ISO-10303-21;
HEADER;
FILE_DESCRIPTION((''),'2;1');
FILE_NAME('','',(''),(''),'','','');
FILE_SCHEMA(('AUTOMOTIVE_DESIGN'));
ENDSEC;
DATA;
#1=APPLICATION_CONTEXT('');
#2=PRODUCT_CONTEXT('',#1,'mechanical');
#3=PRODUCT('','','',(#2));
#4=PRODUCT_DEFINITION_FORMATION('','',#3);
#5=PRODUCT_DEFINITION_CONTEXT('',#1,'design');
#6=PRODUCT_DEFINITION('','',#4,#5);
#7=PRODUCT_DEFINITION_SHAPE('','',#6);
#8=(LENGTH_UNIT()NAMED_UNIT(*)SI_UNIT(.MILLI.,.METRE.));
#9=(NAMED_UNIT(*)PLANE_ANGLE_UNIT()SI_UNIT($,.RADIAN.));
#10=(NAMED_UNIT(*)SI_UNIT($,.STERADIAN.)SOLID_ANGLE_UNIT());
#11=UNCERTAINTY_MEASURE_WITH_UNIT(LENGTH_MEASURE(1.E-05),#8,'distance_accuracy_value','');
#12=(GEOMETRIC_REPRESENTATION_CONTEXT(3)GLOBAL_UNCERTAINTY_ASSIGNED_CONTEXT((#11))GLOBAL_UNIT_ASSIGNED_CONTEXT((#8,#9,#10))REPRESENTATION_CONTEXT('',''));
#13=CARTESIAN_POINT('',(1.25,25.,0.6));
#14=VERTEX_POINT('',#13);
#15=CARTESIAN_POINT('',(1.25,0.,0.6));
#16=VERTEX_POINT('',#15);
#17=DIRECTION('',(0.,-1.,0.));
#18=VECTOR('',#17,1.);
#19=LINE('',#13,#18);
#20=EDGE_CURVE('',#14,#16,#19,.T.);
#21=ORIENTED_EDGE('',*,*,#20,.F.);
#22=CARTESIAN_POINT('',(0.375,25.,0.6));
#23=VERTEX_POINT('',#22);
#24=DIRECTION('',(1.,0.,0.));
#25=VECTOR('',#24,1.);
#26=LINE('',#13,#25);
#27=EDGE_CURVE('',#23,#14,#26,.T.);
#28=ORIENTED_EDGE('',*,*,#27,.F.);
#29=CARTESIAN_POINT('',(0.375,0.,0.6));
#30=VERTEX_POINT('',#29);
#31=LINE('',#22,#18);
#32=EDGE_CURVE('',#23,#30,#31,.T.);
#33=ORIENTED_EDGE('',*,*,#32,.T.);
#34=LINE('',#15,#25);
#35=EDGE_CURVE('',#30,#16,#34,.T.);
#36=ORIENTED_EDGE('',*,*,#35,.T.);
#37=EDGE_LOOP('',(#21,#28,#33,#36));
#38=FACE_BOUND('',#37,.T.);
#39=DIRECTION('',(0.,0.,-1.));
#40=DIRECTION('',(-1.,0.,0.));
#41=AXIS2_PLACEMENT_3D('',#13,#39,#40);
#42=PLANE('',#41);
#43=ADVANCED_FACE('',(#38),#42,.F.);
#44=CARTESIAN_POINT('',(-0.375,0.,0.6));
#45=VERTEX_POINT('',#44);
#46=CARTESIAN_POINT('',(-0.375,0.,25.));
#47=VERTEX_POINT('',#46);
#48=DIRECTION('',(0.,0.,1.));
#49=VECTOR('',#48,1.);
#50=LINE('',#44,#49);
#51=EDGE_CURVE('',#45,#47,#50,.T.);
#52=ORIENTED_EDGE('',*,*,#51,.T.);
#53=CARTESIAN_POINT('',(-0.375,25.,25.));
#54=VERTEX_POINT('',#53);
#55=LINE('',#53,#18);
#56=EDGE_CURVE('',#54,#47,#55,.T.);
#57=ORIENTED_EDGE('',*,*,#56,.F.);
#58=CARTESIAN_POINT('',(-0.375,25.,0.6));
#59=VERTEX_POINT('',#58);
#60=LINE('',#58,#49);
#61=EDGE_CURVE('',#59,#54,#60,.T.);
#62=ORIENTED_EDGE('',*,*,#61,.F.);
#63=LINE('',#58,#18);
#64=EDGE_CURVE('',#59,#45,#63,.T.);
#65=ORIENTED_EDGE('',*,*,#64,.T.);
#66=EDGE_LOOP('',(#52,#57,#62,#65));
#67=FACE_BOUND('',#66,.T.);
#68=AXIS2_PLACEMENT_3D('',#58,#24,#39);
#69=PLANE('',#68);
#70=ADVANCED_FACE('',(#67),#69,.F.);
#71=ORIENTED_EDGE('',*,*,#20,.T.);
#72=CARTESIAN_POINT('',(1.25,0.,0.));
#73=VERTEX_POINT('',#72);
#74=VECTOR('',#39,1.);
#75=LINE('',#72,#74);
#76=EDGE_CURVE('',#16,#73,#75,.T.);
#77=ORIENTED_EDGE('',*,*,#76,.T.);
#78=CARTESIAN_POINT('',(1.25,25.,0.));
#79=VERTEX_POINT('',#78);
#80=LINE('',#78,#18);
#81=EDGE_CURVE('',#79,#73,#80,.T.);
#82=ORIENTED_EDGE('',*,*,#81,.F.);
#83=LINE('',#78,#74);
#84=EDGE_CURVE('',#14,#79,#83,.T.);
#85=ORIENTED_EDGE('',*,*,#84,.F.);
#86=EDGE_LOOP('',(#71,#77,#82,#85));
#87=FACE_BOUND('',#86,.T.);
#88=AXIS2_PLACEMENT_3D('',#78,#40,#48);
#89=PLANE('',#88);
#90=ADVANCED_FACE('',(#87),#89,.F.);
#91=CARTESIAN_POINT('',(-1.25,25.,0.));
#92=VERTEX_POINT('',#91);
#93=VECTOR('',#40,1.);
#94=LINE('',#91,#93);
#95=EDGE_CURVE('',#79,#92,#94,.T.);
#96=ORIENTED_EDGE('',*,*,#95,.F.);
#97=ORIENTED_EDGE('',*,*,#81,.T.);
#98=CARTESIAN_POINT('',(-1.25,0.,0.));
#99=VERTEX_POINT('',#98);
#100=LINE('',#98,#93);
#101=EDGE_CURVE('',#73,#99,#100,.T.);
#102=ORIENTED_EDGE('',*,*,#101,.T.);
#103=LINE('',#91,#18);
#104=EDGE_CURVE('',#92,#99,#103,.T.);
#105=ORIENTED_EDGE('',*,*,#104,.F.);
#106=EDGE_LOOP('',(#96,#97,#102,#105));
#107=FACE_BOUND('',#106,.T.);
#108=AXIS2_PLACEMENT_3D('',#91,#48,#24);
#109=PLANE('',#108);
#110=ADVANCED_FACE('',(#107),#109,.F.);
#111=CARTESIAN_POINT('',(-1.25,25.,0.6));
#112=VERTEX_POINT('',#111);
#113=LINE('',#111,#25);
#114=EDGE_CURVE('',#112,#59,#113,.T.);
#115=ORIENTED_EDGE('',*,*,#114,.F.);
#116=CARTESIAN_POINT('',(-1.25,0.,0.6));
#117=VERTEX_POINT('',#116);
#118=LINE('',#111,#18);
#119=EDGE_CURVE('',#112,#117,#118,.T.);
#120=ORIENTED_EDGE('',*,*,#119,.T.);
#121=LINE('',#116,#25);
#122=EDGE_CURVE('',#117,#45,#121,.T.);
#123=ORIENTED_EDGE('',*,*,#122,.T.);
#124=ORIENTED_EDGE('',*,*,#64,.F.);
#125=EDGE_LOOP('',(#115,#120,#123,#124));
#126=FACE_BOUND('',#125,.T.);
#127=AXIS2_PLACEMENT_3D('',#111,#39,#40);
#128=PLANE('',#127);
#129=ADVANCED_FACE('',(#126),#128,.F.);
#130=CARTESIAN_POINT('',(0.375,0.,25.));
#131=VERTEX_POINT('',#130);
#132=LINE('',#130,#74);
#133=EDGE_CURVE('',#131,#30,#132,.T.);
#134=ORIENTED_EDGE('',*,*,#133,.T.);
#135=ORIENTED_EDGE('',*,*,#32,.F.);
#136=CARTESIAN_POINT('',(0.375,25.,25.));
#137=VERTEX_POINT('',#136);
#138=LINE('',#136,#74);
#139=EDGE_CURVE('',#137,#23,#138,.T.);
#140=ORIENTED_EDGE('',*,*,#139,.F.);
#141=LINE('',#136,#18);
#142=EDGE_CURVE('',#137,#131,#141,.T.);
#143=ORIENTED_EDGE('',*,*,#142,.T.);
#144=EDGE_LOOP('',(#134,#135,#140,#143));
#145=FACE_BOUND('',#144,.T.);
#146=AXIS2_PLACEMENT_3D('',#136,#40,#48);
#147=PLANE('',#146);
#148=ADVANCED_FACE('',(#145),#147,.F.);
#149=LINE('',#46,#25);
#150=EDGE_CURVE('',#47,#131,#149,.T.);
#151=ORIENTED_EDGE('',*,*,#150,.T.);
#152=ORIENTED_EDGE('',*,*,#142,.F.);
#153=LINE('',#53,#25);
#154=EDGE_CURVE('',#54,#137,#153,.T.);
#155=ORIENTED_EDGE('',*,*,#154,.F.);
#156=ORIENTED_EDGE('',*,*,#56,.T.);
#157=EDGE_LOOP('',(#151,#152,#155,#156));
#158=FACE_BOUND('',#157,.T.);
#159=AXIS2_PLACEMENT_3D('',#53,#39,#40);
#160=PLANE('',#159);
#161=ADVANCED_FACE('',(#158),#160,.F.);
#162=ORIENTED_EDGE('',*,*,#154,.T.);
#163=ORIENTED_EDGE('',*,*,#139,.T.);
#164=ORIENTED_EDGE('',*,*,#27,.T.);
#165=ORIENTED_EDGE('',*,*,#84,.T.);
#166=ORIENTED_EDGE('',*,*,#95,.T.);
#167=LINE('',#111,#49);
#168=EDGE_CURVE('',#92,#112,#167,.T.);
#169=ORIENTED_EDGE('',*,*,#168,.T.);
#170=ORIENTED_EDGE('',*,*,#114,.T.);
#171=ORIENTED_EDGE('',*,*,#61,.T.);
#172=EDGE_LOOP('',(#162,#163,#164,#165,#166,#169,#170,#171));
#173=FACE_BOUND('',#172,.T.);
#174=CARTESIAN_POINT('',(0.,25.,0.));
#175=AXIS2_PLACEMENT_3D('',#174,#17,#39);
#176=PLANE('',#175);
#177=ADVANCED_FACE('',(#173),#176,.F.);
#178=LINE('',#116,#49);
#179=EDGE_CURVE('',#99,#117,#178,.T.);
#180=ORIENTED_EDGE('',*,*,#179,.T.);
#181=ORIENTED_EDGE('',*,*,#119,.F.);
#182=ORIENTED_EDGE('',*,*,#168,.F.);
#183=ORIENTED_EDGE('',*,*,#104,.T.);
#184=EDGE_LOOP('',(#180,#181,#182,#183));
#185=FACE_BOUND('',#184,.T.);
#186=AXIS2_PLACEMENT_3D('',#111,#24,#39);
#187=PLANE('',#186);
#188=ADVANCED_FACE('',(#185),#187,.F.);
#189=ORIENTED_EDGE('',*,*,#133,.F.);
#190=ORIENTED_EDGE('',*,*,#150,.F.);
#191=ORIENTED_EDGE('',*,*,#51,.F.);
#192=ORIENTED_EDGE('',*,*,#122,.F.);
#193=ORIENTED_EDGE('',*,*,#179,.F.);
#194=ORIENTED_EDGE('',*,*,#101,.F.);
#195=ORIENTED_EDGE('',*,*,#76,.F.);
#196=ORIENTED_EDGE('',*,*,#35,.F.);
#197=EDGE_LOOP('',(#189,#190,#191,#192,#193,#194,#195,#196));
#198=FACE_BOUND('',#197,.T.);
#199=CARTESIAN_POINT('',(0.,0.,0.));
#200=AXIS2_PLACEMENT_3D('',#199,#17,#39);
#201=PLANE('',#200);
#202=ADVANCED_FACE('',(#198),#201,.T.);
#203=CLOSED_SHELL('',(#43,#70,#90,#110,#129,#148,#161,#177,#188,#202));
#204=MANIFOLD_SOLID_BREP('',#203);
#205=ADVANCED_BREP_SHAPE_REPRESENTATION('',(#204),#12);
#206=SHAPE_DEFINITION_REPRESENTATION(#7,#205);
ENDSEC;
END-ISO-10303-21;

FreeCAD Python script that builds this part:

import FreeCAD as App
import Part
import Sketcher
Q = App.Units.Quantity


def add_polygon(sketch, points):
    """Adds a closed chain of lines whose ends are joined by coincident constraints."""
    first, n = sketch.GeometryCount, len(points)
    for a, b in zip(points, points[1:] + points[:1]):
        sketch.addGeometry(Part.LineSegment(App.Vector(*a, 0), App.Vector(*b, 0)), False)
    for i in range(n):
        sketch.addConstraint(Sketcher.Constraint("Coincident", first + i, 2, first + (i + 1) % n, 1))

doc = App.newDocument("Part")
params = doc.addObject("Spreadsheet::Sheet", "Params")
for row, (alias, value) in enumerate([
    ("sketch1_width", "2.5 mm"),
    ("sketch1_height", "0.6 mm"),
    ("sketch1_height2", "24.4 mm"),
    ("sketch1_width2", "0.75 mm"),
    ("pad1_length", "25 mm"),
], start=1):
    params.set(f"A{row}", alias)
    params.set(f"B{row}", "=" + value)
    params.setAlias(f"B{row}", alias)

body = doc.addObject("PartDesign::Body", "Body")

# Sketch on XZ plane
sketch1 = body.newObject("Sketcher::SketchObject", "Sketch")
sketch1.AttachmentSupport = (doc.getObject("XZ_Plane"), [""])
sketch1.MapMode = "FlatFace"
add_polygon(sketch1, [(1.2, 0), (-1.2, 0), (-1.2, 0.6), (-0.4, 0.6), (-0.4, 25), (0.4, 25), (0.4, 0.6), (1.2, 0.6)])  # lines 0-7
sketch1.addConstraint(Sketcher.Constraint("Horizontal", 0))
sketch1.addConstraint(Sketcher.Constraint("Vertical", 1))
sketch1.addConstraint(Sketcher.Constraint("Horizontal", 2))
sketch1.addConstraint(Sketcher.Constraint("Vertical", 3))
sketch1.addConstraint(Sketcher.Constraint("Horizontal", 4))
sketch1.addConstraint(Sketcher.Constraint("Vertical", 5))
sketch1.addConstraint(Sketcher.Constraint("Horizontal", 6))
sketch1.addConstraint(Sketcher.Constraint("Vertical", 7))
sketch1.addConstraint(Sketcher.Constraint("Symmetric", 0, 2, 7, 2, -1, 1))
sketch1.addConstraint(Sketcher.Constraint("Symmetric", 2, 2, 5, 2, -2))
sketch1.addConstraint(Sketcher.Constraint("DistanceX", 0, 2, 0, 1, Q("2.5 mm")))
sketch1.addConstraint(Sketcher.Constraint("DistanceY", 1, 1, 1, 2, Q("0.6 mm")))
sketch1.addConstraint(Sketcher.Constraint("DistanceY", 3, 1, 3, 2, Q("24.4 mm")))
sketch1.addConstraint(Sketcher.Constraint("DistanceX", 4, 1, 4, 2, Q("0.75 mm")))
sketch1.setExpression("Constraints[18]", "Params.sketch1_width")
sketch1.setExpression("Constraints[19]", "Params.sketch1_height")
sketch1.setExpression("Constraints[20]", "Params.sketch1_height2")
sketch1.setExpression("Constraints[21]", "Params.sketch1_width2")
pad1 = body.newObject("PartDesign::Pad", "Pad")
pad1.Profile = sketch1
pad1.setExpression("Length", "Params.pad1_length")
pad1.Reversed = True

doc.recompute()
